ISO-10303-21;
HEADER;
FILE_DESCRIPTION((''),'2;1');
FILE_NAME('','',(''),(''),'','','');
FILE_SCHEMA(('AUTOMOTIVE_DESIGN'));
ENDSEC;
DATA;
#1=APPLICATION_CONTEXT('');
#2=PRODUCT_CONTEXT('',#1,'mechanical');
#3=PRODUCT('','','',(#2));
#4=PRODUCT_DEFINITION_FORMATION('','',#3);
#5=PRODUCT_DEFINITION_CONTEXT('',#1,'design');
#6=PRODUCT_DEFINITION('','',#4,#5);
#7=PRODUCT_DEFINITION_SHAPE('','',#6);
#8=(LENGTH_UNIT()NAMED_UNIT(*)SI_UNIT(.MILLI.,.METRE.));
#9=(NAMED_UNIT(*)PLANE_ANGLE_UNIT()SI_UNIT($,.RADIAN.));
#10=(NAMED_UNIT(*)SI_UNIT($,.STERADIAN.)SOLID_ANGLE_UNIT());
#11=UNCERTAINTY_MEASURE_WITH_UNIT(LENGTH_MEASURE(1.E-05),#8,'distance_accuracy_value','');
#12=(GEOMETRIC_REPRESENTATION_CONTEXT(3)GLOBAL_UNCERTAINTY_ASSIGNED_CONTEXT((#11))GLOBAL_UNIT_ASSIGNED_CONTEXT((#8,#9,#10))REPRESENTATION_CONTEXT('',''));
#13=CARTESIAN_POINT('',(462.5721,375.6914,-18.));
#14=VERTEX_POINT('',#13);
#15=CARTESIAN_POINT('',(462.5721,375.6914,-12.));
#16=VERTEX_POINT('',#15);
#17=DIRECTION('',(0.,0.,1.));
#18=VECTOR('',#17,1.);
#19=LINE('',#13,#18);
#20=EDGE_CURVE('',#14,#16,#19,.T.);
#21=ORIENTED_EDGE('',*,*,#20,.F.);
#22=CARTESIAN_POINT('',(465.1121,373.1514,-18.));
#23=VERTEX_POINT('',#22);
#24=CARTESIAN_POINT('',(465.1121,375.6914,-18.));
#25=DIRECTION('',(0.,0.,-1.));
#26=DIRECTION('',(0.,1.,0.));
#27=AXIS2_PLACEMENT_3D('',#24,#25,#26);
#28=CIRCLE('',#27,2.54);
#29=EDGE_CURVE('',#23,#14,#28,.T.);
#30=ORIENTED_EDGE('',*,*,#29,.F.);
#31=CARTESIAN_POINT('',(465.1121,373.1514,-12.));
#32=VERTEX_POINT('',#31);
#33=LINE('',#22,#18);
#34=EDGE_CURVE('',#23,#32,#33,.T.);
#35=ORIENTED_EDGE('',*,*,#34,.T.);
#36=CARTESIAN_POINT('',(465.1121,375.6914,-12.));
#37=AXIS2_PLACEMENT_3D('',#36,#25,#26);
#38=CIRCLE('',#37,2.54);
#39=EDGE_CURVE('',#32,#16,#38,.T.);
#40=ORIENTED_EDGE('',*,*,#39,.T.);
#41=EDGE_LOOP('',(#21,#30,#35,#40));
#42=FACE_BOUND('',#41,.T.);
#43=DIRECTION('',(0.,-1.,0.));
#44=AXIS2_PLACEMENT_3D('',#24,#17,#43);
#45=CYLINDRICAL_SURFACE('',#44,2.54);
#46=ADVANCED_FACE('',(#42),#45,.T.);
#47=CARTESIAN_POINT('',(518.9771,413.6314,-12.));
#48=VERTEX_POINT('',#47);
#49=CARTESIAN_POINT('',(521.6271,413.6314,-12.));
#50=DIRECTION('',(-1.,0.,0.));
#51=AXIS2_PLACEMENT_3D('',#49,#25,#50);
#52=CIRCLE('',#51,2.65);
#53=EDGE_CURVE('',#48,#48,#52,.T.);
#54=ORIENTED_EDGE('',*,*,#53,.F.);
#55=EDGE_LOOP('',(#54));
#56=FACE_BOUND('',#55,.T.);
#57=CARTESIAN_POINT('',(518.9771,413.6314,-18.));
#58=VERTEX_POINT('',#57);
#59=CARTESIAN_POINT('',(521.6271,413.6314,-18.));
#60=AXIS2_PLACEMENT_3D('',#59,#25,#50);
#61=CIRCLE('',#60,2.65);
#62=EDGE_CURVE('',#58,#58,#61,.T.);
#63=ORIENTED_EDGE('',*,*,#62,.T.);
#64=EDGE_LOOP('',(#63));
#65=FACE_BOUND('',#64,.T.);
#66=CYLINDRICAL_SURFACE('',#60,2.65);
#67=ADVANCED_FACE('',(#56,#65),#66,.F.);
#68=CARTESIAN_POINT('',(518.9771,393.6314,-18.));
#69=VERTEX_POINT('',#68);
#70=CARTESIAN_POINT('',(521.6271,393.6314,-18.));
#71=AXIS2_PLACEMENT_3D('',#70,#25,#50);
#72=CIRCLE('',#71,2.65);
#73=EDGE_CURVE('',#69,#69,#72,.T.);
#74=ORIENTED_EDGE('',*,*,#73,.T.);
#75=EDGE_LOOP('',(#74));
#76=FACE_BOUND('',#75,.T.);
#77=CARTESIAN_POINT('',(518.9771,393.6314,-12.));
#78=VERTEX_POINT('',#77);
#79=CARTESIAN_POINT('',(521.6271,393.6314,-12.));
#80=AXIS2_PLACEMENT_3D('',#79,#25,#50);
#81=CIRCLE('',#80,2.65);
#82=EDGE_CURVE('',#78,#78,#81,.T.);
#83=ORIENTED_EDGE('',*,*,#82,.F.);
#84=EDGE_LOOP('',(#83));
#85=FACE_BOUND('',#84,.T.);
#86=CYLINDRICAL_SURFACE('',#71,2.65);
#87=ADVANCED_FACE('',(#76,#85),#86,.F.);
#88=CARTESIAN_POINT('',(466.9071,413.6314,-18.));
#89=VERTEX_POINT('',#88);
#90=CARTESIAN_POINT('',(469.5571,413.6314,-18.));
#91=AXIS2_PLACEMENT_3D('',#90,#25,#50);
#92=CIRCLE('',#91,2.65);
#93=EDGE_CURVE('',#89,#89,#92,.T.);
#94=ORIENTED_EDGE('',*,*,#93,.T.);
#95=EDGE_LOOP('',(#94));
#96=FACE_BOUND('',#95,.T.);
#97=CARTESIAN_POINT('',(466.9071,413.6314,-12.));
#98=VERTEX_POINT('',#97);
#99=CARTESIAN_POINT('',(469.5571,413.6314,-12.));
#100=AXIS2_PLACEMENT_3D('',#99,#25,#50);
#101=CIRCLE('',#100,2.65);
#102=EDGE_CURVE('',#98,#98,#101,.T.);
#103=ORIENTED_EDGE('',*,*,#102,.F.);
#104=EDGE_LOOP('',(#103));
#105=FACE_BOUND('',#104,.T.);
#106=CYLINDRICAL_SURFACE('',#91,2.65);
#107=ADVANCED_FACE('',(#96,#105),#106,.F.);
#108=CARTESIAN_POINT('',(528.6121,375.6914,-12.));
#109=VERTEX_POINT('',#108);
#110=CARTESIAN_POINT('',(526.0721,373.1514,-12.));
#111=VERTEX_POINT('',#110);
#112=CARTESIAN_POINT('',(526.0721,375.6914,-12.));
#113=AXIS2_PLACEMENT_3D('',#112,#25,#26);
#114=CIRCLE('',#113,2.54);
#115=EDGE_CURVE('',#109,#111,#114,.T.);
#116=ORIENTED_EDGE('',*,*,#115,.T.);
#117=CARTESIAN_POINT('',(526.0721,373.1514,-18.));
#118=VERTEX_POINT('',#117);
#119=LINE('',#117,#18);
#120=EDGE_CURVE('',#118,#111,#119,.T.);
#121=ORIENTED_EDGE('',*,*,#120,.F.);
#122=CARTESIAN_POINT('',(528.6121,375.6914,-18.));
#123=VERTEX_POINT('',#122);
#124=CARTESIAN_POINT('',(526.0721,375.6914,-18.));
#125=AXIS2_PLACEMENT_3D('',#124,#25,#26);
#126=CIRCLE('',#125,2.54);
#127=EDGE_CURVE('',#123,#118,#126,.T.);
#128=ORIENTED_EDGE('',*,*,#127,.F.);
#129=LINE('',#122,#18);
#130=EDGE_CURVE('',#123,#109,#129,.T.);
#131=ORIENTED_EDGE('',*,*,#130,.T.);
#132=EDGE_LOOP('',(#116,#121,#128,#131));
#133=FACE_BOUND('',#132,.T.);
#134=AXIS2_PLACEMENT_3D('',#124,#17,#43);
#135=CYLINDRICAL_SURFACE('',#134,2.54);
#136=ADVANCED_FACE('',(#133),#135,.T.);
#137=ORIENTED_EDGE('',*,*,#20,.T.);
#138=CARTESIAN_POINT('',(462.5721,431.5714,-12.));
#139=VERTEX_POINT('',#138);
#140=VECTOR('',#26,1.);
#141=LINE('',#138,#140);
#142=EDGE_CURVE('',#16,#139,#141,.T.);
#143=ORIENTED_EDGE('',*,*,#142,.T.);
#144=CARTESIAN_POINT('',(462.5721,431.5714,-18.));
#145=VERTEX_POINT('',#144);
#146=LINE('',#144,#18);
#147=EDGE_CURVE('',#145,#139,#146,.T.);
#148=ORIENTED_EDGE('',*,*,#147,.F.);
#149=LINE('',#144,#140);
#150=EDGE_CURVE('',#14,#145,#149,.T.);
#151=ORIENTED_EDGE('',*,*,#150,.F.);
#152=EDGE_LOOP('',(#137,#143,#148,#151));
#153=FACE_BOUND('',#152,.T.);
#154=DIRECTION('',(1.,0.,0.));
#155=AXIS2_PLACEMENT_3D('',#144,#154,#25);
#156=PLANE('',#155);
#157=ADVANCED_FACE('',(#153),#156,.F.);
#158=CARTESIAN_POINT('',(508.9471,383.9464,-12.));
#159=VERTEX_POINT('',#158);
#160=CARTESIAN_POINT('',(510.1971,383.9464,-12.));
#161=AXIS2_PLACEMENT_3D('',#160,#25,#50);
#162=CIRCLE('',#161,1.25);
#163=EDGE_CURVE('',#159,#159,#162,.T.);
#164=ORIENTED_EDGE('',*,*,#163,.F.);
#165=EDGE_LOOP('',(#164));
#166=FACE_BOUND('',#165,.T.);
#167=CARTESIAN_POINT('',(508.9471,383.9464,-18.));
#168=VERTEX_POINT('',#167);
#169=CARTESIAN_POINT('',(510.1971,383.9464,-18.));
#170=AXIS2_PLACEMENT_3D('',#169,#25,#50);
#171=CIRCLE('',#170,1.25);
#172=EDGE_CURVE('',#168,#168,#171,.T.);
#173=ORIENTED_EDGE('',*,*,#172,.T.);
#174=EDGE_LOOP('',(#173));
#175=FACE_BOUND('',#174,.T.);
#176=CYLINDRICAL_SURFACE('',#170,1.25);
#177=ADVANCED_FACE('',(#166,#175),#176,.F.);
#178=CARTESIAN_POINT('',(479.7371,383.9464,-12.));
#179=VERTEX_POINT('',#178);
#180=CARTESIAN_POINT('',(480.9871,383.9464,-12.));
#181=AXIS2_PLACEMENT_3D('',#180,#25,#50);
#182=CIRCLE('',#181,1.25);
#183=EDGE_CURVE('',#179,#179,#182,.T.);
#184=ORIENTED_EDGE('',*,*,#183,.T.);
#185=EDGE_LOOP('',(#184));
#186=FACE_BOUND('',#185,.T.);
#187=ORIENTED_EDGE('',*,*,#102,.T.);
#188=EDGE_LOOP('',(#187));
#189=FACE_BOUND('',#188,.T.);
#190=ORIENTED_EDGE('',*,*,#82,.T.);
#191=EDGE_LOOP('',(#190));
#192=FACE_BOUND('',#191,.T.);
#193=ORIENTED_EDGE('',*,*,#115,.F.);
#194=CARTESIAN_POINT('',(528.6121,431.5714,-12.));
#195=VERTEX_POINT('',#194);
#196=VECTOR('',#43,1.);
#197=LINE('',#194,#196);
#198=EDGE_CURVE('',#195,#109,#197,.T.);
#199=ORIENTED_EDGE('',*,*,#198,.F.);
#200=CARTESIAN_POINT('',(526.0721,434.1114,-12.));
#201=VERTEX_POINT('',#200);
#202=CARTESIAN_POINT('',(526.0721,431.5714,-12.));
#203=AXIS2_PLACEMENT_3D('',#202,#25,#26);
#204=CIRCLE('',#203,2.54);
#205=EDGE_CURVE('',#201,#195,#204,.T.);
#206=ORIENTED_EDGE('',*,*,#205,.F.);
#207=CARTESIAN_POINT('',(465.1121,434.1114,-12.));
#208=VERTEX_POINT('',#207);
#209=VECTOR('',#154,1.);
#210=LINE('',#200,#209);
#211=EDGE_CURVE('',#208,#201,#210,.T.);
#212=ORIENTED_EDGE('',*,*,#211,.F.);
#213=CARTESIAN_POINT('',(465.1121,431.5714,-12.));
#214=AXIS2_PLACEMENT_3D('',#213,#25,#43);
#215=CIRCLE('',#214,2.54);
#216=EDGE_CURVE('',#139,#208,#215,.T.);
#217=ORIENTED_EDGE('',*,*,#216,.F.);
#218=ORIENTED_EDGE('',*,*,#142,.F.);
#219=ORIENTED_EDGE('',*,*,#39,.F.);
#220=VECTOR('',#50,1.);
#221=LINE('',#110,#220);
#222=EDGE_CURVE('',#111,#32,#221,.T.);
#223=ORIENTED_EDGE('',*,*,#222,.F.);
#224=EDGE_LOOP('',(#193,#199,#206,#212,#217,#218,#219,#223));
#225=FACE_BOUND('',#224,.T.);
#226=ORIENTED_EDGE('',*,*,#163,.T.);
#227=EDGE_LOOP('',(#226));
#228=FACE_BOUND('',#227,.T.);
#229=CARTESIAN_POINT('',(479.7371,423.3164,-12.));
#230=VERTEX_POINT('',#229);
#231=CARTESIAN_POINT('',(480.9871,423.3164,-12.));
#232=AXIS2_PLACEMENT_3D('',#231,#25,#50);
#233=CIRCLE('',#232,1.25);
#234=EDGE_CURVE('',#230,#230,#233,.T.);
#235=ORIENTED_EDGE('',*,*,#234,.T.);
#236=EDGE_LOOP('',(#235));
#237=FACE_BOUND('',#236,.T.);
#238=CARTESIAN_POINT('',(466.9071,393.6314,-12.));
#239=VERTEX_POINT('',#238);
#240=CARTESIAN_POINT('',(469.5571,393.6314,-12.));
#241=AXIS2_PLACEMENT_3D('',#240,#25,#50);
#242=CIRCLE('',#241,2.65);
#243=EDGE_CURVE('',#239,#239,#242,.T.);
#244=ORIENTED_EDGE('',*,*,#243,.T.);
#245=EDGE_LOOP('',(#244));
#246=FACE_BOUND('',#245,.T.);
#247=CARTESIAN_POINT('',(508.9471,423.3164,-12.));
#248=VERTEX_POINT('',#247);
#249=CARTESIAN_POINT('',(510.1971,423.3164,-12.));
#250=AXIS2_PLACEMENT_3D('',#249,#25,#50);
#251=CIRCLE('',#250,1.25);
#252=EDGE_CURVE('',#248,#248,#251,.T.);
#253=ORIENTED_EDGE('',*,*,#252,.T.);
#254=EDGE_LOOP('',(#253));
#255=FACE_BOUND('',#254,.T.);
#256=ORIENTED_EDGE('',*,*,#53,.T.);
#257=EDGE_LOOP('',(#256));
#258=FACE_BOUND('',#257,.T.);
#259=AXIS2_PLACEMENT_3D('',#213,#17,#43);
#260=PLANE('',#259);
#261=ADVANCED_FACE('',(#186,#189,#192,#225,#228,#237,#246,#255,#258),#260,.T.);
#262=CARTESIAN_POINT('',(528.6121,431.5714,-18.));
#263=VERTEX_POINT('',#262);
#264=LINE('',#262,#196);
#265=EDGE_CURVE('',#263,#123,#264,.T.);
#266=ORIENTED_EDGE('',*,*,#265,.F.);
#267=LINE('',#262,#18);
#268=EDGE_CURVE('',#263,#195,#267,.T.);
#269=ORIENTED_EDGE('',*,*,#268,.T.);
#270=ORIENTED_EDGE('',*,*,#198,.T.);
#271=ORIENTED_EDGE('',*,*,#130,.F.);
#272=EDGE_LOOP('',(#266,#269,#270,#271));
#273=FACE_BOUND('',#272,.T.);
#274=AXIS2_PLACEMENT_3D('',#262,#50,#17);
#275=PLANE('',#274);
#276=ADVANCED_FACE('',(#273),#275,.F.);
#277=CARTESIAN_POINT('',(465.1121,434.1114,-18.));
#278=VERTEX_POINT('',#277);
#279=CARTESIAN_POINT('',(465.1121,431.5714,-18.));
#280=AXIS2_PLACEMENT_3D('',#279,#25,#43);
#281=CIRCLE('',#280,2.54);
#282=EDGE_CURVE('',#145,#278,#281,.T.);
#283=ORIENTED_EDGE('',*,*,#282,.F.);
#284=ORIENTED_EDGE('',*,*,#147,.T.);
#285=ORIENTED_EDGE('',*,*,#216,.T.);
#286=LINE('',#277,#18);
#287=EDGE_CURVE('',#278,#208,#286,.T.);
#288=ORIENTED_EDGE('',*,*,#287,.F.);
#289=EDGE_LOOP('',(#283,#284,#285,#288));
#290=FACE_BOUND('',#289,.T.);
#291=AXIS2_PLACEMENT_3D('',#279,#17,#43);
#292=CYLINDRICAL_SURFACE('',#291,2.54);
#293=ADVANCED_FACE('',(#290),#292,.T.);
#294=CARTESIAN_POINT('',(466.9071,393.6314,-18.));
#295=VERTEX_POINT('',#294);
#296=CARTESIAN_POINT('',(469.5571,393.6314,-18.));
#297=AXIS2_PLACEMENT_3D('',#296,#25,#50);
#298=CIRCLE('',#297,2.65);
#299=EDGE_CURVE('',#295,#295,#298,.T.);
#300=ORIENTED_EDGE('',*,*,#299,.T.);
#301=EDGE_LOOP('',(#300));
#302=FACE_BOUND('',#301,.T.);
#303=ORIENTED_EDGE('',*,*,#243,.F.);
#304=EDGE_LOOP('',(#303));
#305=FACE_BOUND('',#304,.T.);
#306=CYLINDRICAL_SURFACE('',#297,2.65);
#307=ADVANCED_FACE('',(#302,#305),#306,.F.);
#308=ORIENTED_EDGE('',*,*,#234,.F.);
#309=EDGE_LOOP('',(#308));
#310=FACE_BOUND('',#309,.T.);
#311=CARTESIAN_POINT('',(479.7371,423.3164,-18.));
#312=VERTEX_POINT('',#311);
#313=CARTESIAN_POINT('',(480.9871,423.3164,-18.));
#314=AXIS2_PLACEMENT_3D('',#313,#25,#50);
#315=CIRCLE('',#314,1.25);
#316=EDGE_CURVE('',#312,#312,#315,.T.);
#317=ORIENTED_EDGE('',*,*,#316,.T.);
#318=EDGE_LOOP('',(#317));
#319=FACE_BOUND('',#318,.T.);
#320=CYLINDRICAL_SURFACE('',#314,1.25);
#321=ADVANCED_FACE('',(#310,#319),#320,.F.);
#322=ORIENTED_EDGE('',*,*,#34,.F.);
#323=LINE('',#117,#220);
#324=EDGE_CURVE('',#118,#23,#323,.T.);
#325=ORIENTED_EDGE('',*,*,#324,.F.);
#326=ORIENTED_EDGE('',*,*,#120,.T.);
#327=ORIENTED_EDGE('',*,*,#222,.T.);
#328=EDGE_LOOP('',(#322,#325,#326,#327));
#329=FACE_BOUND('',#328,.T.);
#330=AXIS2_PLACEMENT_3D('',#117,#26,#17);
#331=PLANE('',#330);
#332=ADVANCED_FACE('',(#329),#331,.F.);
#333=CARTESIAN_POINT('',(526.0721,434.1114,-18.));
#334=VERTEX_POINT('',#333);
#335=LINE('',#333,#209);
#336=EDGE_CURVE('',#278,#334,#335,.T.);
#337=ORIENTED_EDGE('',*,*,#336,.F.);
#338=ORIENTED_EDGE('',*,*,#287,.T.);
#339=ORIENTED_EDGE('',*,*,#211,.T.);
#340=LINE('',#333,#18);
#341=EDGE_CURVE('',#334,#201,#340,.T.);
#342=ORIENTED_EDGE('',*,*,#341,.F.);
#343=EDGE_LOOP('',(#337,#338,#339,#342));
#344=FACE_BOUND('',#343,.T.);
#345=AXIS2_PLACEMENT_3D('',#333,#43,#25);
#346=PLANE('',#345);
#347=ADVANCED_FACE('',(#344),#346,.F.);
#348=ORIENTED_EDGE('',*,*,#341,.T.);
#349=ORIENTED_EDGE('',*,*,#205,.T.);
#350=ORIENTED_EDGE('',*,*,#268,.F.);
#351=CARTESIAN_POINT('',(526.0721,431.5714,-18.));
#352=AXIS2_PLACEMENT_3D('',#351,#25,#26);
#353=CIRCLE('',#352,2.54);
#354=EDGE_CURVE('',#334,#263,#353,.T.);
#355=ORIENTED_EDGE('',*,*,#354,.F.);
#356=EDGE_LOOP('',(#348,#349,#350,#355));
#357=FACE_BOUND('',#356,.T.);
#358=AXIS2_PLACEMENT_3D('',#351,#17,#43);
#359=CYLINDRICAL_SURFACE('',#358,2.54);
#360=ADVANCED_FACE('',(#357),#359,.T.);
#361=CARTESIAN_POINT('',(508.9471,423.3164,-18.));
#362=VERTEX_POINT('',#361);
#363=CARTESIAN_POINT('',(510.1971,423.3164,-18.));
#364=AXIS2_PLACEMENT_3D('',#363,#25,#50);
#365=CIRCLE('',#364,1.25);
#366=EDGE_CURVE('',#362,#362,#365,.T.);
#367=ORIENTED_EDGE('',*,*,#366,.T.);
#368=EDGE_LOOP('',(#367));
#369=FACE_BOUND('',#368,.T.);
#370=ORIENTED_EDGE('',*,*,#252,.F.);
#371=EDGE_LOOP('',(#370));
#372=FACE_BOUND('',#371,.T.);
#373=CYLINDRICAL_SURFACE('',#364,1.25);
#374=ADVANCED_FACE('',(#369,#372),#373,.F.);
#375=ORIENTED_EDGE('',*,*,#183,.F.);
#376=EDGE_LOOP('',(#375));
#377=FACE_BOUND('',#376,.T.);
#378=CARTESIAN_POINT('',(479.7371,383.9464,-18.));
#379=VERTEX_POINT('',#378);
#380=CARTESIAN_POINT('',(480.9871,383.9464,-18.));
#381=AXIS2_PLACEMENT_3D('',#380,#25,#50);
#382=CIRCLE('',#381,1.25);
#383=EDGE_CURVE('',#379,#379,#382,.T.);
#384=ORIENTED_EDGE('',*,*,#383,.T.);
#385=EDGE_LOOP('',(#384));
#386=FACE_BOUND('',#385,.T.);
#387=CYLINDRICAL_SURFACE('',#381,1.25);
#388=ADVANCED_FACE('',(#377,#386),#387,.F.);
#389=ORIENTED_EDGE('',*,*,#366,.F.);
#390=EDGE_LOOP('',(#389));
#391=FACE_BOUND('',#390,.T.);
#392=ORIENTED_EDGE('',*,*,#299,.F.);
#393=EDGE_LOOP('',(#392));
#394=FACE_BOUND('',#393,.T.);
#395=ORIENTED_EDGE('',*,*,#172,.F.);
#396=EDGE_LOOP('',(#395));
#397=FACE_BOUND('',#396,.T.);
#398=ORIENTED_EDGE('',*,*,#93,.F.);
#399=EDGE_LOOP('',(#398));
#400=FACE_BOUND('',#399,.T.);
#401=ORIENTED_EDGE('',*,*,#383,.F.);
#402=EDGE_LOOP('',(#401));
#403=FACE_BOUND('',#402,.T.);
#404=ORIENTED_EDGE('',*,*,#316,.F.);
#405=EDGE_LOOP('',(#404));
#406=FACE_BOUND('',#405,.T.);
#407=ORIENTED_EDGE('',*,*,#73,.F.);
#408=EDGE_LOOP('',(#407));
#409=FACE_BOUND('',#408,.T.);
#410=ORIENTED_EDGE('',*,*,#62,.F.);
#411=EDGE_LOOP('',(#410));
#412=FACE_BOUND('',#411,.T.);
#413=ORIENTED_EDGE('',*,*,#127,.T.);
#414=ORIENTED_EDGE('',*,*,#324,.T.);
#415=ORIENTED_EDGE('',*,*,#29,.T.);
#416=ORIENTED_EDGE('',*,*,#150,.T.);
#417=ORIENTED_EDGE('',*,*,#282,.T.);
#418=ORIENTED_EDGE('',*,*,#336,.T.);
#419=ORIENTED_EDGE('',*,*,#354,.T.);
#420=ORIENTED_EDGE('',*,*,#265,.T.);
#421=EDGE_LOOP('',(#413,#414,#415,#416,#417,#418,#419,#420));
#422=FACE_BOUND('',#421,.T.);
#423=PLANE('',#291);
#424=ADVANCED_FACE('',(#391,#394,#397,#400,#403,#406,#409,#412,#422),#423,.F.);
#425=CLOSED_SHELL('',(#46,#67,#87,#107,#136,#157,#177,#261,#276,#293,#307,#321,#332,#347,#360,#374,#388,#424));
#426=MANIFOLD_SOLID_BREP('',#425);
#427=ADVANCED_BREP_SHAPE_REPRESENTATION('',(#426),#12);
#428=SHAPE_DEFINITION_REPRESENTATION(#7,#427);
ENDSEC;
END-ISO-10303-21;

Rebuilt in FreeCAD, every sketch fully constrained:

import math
import FreeCAD as App
import Part
import Sketcher
from FreeCAD import Vector

doc = App.newDocument("Part")
params = doc.addObject("Spreadsheet::Sheet", "Params")
for row, (alias, value) in enumerate([
    ("sketch1_radius", "2.54 mm"),
    ("sketch1_width", "60.96 mm"),
    ("sketch1_height", "55.88 mm"),
    ("pad1_length", "6 mm"),
    ("sketch2_diameter", "5.3 mm"),
    ("hole_diameter", "5.3 mm"),
    ("sketch3_diameter", "2.5 mm"),
    ("hole2_diameter", "2.5 mm"),
], start=1):
    params.set(f"A{row}", alias)
    params.set(f"B{row}", "=" + value)
    params.setAlias(f"B{row}", alias)

body = doc.addObject("PartDesign::Body", "Body")

sketch1 = doc.addObject("Sketcher::SketchObject", "Sketch")
body.addObject(sketch1)
sketch1.AttachmentSupport = (doc.XY_Plane, [""])
sketch1.MapMode = "FlatFace"
sketch1.AttachmentOffset = App.Placement(Vector(0, 0, -12), App.Rotation())
sketch1.addGeometry([
    Part.LineSegment(Vector(465.1, 434.1, 0), Vector(526.1, 434.1, 0)),
    Part.ArcOfCircle(Part.Circle(Vector(526.1, 431.6, 0), Vector(0, 0, 1), 2.5), math.radians(0), math.radians(90)),
    Part.LineSegment(Vector(528.6, 431.6, 0), Vector(528.6, 375.7, 0)),
    Part.ArcOfCircle(Part.Circle(Vector(526.1, 375.7, 0), Vector(0, 0, 1), 2.5), math.radians(-90), math.radians(0)),
    Part.LineSegment(Vector(526.1, 373.2, 0), Vector(465.1, 373.2, 0)),
    Part.ArcOfCircle(Part.Circle(Vector(465.1, 375.7, 0), Vector(0, 0, 1), 2.5), math.radians(-180), math.radians(-90)),
    Part.LineSegment(Vector(462.6, 375.7, 0), Vector(462.6, 431.6, 0)),
    Part.ArcOfCircle(Part.Circle(Vector(465.1, 431.6, 0), Vector(0, 0, 1), 2.5), math.radians(90), math.radians(180)),
], False)
sketch1.addConstraint([
    Sketcher.Constraint("Tangent", 0, 2, 1, 2),
    Sketcher.Constraint("Tangent", 1, 1, 2, 1),
    Sketcher.Constraint("Tangent", 2, 2, 3, 2),
    Sketcher.Constraint("Tangent", 3, 1, 4, 1),
    Sketcher.Constraint("Tangent", 4, 2, 5, 2),
    Sketcher.Constraint("Tangent", 5, 1, 6, 1),
    Sketcher.Constraint("Tangent", 6, 2, 7, 2),
    Sketcher.Constraint("Tangent", 7, 1, 0, 1),
    Sketcher.Constraint("Horizontal", 0),
    Sketcher.Constraint("Vertical", 2),
    Sketcher.Constraint("Horizontal", 4),
    Sketcher.Constraint("Vertical", 6),
    Sketcher.Constraint("Equal", 1, 3),
    Sketcher.Constraint("Equal", 3, 5),
    Sketcher.Constraint("Equal", 5, 7),
    Sketcher.Constraint("Radius", 1, 2.54),
    Sketcher.Constraint("DistanceX", 0, 1, 0, 2, 60.96),
    Sketcher.Constraint("DistanceY", 2, 2, 2, 1, 55.88),
    Sketcher.Constraint("DistanceX", -1, 1, 1, 3, 526.0721),
    Sketcher.Constraint("DistanceY", -1, 1, 1, 3, 431.5714),
])
sketch1.setExpression("Constraints[15]", "Params.sketch1_radius")
sketch1.setExpression("Constraints[16]", "Params.sketch1_width")
sketch1.setExpression("Constraints[17]", "Params.sketch1_height")
pad1 = doc.addObject("PartDesign::Pad", "Pad")
body.addObject(pad1)
pad1.Profile = sketch1
pad1.setExpression("Length", "Params.pad1_length")
pad1.Reversed = True

sketch2 = doc.addObject("Sketcher::SketchObject", "Sketch001")
body.addObject(sketch2)
sketch2.AttachmentSupport = (doc.XY_Plane, [""])
sketch2.MapMode = "FlatFace"
sketch2.AttachmentOffset = App.Placement(Vector(0, 0, -18), App.Rotation())
sketch2.addGeometry([
    Part.Circle(Vector(521.6, 413.6, 0), Vector(0, 0, 1), 2.6),
    Part.Circle(Vector(521.6, 393.6, 0), Vector(0, 0, 1), 2.6),
    Part.Circle(Vector(469.6, 393.6, 0), Vector(0, 0, 1), 2.6),
    Part.Circle(Vector(469.6, 413.6, 0), Vector(0, 0, 1), 2.6),
], False)
sketch2.addConstraint([
    Sketcher.Constraint("Equal", 0, 1),
    Sketcher.Constraint("Equal", 1, 2),
    Sketcher.Constraint("Equal", 2, 3),
    Sketcher.Constraint("Horizontal", 1, 3, 2, 3),
    Sketcher.Constraint("Horizontal", 0, 3, 3, 3),
    Sketcher.Constraint("Vertical", 0, 3, 1, 3),
    Sketcher.Constraint("Vertical", 2, 3, 3, 3),
    Sketcher.Constraint("Diameter", 0, 5.3),
    Sketcher.Constraint("DistanceY", 1, 3, 0, 3, 20.0),
    Sketcher.Constraint("DistanceX", 2, 3, 1, 3, 52.07),
    Sketcher.Constraint("DistanceX", -1, 1, 0, 3, 521.6271),
    Sketcher.Constraint("DistanceY", -1, 1, 0, 3, 413.6314),
])
sketch2.setExpression("Constraints[7]", "Params.sketch2_diameter")
doc.recompute()
hole = doc.addObject("PartDesign::Hole", "Hole")
body.addObject(hole)
hole.Profile = sketch2
hole.ThreadType = "None"
hole.setExpression("Diameter", "Params.hole_diameter")
hole.DepthType = "ThroughAll"
hole.Reversed = True

sketch3 = doc.addObject("Sketcher::SketchObject", "Sketch002")
body.addObject(sketch3)
sketch3.AttachmentSupport = (doc.XY_Plane, [""])
sketch3.MapMode = "FlatFace"
sketch3.AttachmentOffset = App.Placement(Vector(0, 0, -18), App.Rotation())
sketch3.addGeometry([
    Part.Circle(Vector(510.2, 423.3, 0), Vector(0, 0, 1), 1.2),
    Part.Circle(Vector(481, 423.3, 0), Vector(0, 0, 1), 1.2),
    Part.Circle(Vector(481, 383.9, 0), Vector(0, 0, 1), 1.2),
    Part.Circle(Vector(510.2, 383.9, 0), Vector(0, 0, 1), 1.2),
], False)
sketch3.addConstraint([
    Sketcher.Constraint("Equal", 0, 1),
    Sketcher.Constraint("Equal", 1, 2),
    Sketcher.Constraint("Equal", 2, 3),
    Sketcher.Constraint("Horizontal", 0, 3, 1, 3),
    Sketcher.Constraint("Horizontal", 2, 3, 3, 3),
    Sketcher.Constraint("Vertical", 1, 3, 2, 3),
    Sketcher.Constraint("Vertical", 0, 3, 3, 3),
    Sketcher.Constraint("Diameter", 0, 2.5),
    Sketcher.Constraint("DistanceX", 1, 3, 0, 3, 29.21),
    Sketcher.Constraint("DistanceY", 2, 3, 1, 3, 39.37),
    Sketcher.Constraint("DistanceX", -1, 1, 0, 3, 510.1971),
    Sketcher.Constraint("DistanceY", -1, 1, 0, 3, 423.3164),
])
sketch3.setExpression("Constraints[7]", "Params.sketch3_diameter")
doc.recompute()
hole2 = doc.addObject("PartDesign::Hole", "Hole001")
body.addObject(hole2)
hole2.Profile = sketch3
hole2.ThreadType = "None"
hole2.setExpression("Diameter", "Params.hole2_diameter")
hole2.DepthType = "ThroughAll"
hole2.Reversed = True

doc.recompute()
